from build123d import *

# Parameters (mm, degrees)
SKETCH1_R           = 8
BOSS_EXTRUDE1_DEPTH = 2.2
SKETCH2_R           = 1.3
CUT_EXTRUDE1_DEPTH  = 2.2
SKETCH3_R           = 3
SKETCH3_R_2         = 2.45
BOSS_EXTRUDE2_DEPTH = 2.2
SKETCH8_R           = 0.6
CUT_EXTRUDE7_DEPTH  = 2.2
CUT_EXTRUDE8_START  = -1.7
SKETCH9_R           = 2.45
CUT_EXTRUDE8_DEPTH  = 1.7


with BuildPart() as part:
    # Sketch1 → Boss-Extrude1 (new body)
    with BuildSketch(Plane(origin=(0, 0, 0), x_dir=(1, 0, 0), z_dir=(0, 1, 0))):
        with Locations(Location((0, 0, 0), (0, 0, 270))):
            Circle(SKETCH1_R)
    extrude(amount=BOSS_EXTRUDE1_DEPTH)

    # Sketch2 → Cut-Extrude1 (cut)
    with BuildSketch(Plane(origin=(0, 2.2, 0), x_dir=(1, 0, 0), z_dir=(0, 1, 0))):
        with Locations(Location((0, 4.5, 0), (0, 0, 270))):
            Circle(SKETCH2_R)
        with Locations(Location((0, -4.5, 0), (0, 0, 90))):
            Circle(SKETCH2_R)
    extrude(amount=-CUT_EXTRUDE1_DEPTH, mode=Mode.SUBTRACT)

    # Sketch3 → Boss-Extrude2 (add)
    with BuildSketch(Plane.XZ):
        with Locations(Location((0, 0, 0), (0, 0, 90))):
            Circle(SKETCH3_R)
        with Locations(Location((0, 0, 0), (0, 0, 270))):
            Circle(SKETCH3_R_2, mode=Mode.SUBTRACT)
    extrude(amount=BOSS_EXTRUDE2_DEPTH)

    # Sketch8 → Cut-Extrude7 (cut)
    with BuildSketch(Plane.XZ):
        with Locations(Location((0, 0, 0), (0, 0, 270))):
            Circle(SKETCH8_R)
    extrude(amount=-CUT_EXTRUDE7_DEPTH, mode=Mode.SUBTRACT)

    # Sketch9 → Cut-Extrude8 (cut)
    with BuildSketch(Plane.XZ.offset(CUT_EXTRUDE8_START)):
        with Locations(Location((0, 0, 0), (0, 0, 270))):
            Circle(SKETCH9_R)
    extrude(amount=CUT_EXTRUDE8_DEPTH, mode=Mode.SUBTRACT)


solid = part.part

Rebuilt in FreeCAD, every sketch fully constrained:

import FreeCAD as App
import Part
import Sketcher

V = App.Vector

doc = App.newDocument("Part")
body = doc.addObject("PartDesign::Body", "Body")

# Sketch on XZ plane
sketch1 = body.newObject("Sketcher::SketchObject", "Sketch")
sketch1.AttachmentSupport = (doc.getObject("XZ_Plane"), [""])
sketch1.MapMode = "FlatFace"
sketch1.addGeometry(Part.Circle(V(0, 0, 0), V(0, 0, 1), 8), False)
sketch1.addConstraint([
    Sketcher.Constraint("Coincident", 0, 3, -1, 1),
    Sketcher.Constraint("Diameter", 0, 16.0),
])
pad1 = body.newObject("PartDesign::Pad", "Pad")
pad1.Profile = sketch1
pad1.Length = 2.2
pad1.Reversed = True

# Sketch on XZ plane
sketch2 = body.newObject("Sketcher::SketchObject", "Sketch001")
sketch2.AttachmentSupport = (doc.getObject("XZ_Plane"), [""])
sketch2.MapMode = "FlatFace"
sketch2.AttachmentOffset = App.Placement(V(0, 0, -2.2), App.Rotation())
sketch2.addGeometry([
    Part.Circle(V(0, -4.5, 0), V(0, 0, 1), 1.3),
    Part.Circle(V(0, 4.5, 0), V(0, 0, 1), 1.3),
], False)
sketch2.addConstraint([
    Sketcher.Constraint("Equal", 0, 1),
    Sketcher.Constraint("Symmetric", 0, 3, 1, 3, -1, 1),
    Sketcher.Constraint("PointOnObject", 0, 3, -2),
    Sketcher.Constraint("Diameter", 0, 2.6),
    Sketcher.Constraint("DistanceY", 0, 3, 1, 3, 9.0),
])
pocket1 = body.newObject("PartDesign::Pocket", "Pocket")
pocket1.Profile = sketch2
pocket1.Length = 2.2
pocket1.Reversed = True

# Sketch on XZ plane
sketch3 = body.newObject("Sketcher::SketchObject", "Sketch002")
sketch3.AttachmentSupport = (doc.getObject("XZ_Plane"), [""])
sketch3.MapMode = "FlatFace"
sketch3.addGeometry([
    Part.Circle(V(0, 0, 0), V(0, 0, 1), 3),
    Part.Circle(V(0, 0, 0), V(0, 0, 1), 2.5),
], False)
sketch3.addConstraint([
    Sketcher.Constraint("Coincident", 0, 3, -1, 1),
    Sketcher.Constraint("Coincident", 1, 3, -1, 1),
    Sketcher.Constraint("Diameter", 0, 6.0),
    Sketcher.Constraint("Diameter", 1, 4.9),
])
pad2 = body.newObject("PartDesign::Pad", "Pad001")
pad2.Profile = sketch3
pad2.Length = 2.2

# Sketch on XZ plane
sketch4 = body.newObject("Sketcher::SketchObject", "Sketch003")
sketch4.AttachmentSupport = (doc.getObject("XZ_Plane"), [""])
sketch4.MapMode = "FlatFace"
sketch4.addGeometry(Part.Circle(V(0, 0, 0), V(0, 0, 1), 0.6), False)
sketch4.addConstraint([
    Sketcher.Constraint("Coincident", 0, 3, -1, 1),
    Sketcher.Constraint("Diameter", 0, 1.2),
])
pocket2 = body.newObject("PartDesign::Pocket", "Pocket001")
pocket2.Profile = sketch4
pocket2.Length = 2.2

# Sketch on XZ plane
sketch5 = body.newObject("Sketcher::SketchObject", "Sketch004")
sketch5.AttachmentSupport = (doc.getObject("XZ_Plane"), [""])
sketch5.MapMode = "FlatFace"
sketch5.AttachmentOffset = App.Placement(V(0, 0, -1.7), App.Rotation())
sketch5.addGeometry(Part.Circle(V(0, 0, 0), V(0, 0, 1), 2.5), False)
sketch5.addConstraint([
    Sketcher.Constraint("Coincident", 0, 3, -1, 1),
    Sketcher.Constraint("Diameter", 0, 4.9),
])
pocket3 = body.newObject("PartDesign::Pocket", "Pocket002")
pocket3.Profile = sketch5
pocket3.Length = 1.7
pocket3.Reversed = True

doc.recompute()
